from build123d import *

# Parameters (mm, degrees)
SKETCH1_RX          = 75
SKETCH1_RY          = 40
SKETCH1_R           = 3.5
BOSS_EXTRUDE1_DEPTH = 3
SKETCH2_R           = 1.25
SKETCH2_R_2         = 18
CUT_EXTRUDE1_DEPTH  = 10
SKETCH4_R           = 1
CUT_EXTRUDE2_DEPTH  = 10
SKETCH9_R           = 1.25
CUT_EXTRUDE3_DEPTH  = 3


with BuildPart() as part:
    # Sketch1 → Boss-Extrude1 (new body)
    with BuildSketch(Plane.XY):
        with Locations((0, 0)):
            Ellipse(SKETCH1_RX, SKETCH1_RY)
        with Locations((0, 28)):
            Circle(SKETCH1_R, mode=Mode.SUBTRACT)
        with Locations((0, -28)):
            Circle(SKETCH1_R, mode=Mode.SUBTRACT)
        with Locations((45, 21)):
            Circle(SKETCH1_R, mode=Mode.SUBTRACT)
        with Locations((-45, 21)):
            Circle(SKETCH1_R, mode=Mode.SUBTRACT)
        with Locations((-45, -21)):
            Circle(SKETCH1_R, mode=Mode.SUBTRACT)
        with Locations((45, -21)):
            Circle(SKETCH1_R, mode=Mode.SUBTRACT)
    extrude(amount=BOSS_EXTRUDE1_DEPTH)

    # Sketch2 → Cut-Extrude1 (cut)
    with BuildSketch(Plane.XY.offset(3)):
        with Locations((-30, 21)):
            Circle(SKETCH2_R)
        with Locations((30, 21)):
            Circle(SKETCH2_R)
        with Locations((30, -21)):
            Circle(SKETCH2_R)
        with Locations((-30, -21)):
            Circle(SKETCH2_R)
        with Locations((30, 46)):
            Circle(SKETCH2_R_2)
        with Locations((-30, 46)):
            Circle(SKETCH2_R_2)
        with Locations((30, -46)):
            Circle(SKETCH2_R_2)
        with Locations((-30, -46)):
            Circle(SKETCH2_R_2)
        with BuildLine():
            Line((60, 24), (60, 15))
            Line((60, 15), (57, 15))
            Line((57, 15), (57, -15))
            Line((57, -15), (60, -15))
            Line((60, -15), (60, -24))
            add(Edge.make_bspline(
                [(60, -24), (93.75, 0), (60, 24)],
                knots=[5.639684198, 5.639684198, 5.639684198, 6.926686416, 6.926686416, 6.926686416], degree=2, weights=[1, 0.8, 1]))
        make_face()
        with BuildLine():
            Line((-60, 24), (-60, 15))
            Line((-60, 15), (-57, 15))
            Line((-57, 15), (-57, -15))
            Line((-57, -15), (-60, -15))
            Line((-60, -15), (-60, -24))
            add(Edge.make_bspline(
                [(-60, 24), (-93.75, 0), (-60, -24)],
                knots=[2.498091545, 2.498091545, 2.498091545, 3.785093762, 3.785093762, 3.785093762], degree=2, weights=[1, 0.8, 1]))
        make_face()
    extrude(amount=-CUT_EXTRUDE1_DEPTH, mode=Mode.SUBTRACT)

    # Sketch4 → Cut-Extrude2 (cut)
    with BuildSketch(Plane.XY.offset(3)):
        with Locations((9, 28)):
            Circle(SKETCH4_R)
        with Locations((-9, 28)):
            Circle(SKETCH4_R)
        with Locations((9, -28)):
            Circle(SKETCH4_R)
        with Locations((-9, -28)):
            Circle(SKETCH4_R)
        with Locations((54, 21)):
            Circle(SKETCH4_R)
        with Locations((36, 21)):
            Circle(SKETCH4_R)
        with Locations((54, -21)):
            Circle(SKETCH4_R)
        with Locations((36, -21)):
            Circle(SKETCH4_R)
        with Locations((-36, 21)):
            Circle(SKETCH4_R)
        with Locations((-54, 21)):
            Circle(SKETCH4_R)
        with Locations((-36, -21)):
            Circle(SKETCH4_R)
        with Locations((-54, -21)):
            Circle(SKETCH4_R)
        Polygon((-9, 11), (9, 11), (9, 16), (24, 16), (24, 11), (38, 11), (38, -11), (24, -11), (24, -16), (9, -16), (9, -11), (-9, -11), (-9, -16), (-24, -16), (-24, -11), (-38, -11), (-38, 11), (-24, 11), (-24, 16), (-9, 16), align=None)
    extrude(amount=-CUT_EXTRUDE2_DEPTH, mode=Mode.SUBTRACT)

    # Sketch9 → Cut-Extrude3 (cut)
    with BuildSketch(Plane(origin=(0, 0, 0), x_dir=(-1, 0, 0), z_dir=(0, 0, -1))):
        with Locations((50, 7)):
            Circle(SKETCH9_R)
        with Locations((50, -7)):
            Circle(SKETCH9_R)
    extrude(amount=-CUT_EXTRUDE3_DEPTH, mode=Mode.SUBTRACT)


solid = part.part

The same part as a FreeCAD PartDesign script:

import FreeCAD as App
import Part
import Sketcher
Q = App.Units.Quantity


def add_polygon(sketch, points):
    """Adds a closed chain of lines whose ends are joined by coincident constraints."""
    first, n = sketch.GeometryCount, len(points)
    for a, b in zip(points, points[1:] + points[:1]):
        sketch.addGeometry(Part.LineSegment(App.Vector(*a, 0), App.Vector(*b, 0)), False)
    for i in range(n):
        sketch.addConstraint(Sketcher.Constraint("Coincident", first + i, 2, first + (i + 1) % n, 1))

doc = App.newDocument("Part")
body = doc.addObject("PartDesign::Body", "Body")

sketch1 = doc.addObject("Sketcher::SketchObject", "Sketch")
body.addObject(sketch1)
sketch1.AttachmentSupport = (doc.XY_Plane, [""])
sketch1.MapMode = "FlatFace"
sketch1.addGeometry(Part.Ellipse(App.Vector(75, 0, 0), App.Vector(0, 40, 0), App.Vector(0, 0, 0)), False)
sketch1.addGeometry(Part.Circle(App.Vector(-45, -21, 0), App.Vector(0, 0, 1), 3.5), False)
sketch1.addGeometry(Part.Circle(App.Vector(0, -28, 0), App.Vector(0, 0, 1), 3.5), False)
sketch1.addGeometry(Part.Circle(App.Vector(45, -21, 0), App.Vector(0, 0, 1), 3.5), False)
sketch1.addGeometry(Part.Circle(App.Vector(-45, 21, 0), App.Vector(0, 0, 1), 3.5), False)
sketch1.addGeometry(Part.Circle(App.Vector(0, 28, 0), App.Vector(0, 0, 1), 3.5), False)
sketch1.addGeometry(Part.Circle(App.Vector(45, 21, 0), App.Vector(0, 0, 1), 3.5), False)
sketch1.addConstraint(Sketcher.Constraint("Block", 0))
sketch1.addConstraint(Sketcher.Constraint("Equal", 1, 2))
sketch1.addConstraint(Sketcher.Constraint("Equal", 2, 3))
sketch1.addConstraint(Sketcher.Constraint("Equal", 3, 4))
sketch1.addConstraint(Sketcher.Constraint("Equal", 4, 5))
sketch1.addConstraint(Sketcher.Constraint("Equal", 5, 6))
sketch1.addConstraint(Sketcher.Constraint("Symmetric", 3, 3, 4, 3, -1, 1))
sketch1.addConstraint(Sketcher.Constraint("Symmetric", 2, 3, 5, 3, -1, 1))
sketch1.addConstraint(Sketcher.Constraint("Symmetric", 1, 3, 6, 3, -1, 1))
sketch1.addConstraint(Sketcher.Constraint("Symmetric", 1, 3, 3, 3, -2))
sketch1.addConstraint(Sketcher.Constraint("PointOnObject", 2, 3, -2))
sketch1.addConstraint(Sketcher.Constraint("Diameter", 1, Q("7 mm")))
sketch1.addConstraint(Sketcher.Constraint("DistanceX", 1, 3, -1, 1, Q("45 mm")))
sketch1.addConstraint(Sketcher.Constraint("DistanceY", 1, 3, -1, 1, Q("21 mm")))
sketch1.addConstraint(Sketcher.Constraint("DistanceY", 2, 3, -1, 1, Q("28 mm")))
pad1 = doc.addObject("PartDesign::Pad", "Pad")
body.addObject(pad1)
pad1.Profile = sketch1
pad1.Length = 3

sketch2 = doc.addObject("Sketcher::SketchObject", "Sketch001")
body.addObject(sketch2)
sketch2.AttachmentSupport = (doc.XY_Plane, [""])
sketch2.MapMode = "FlatFace"
sketch2.AttachmentOffset = App.Placement(App.Vector(0, 0, 3), App.Rotation())
sketch2.addGeometry(Part.Circle(App.Vector(-30, 21, 0), App.Vector(0, 0, 1), 1.25), False)
sketch2.addGeometry(Part.Circle(App.Vector(30, 21, 0), App.Vector(0, 0, 1), 1.25), False)
sketch2.addGeometry(Part.Circle(App.Vector(30, -21, 0), App.Vector(0, 0, 1), 1.25), False)
sketch2.addGeometry(Part.Circle(App.Vector(-30, -21, 0), App.Vector(0, 0, 1), 1.25), False)
sketch2.addGeometry(Part.Circle(App.Vector(30, 46, 0), App.Vector(0, 0, 1), 18), False)
sketch2.addGeometry(Part.Circle(App.Vector(-30, 46, 0), App.Vector(0, 0, 1), 18), False)
sketch2.addGeometry(Part.Circle(App.Vector(30, -46, 0), App.Vector(0, 0, 1), 18), False)
sketch2.addGeometry(Part.Circle(App.Vector(-30, -46, 0), App.Vector(0, 0, 1), 18), False)
sketch2.addGeometry(Part.LineSegment(App.Vector(60, 24, 0), App.Vector(60, 15, 0)), False)
sketch2.addGeometry(Part.LineSegment(App.Vector(60, 15, 0), App.Vector(57, 15, 0)), False)
sketch2.addGeometry(Part.LineSegment(App.Vector(57, 15, 0), App.Vector(57, -15, 0)), False)
sketch2.addGeometry(Part.LineSegment(App.Vector(57, -15, 0), App.Vector(60, -15, 0)), False)
sketch2.addGeometry(Part.LineSegment(App.Vector(60, -15, 0), App.Vector(60, -24, 0)), False)
sketch2.addGeometry(Part.BSplineCurve([App.Vector(60, -24, 0), App.Vector(93.75, 0, 0), App.Vector(60, 24, 0)], [3, 3], [5.639684198, 6.926686416], False, 2, [1, 0.8, 1], False), False)
sketch2.addGeometry(Part.LineSegment(App.Vector(-60, 15, 0), App.Vector(-60, 24, 0)), False)
sketch2.addGeometry(Part.BSplineCurve([App.Vector(-60, 24, 0), App.Vector(-93.75, 0, 0), App.Vector(-60, -24, 0)], [3, 3], [2.498091545, 3.785093762], False, 2, [1, 0.8, 1], False), False)
sketch2.addGeometry(Part.LineSegment(App.Vector(-60, -24, 0), App.Vector(-60, -15, 0)), False)
sketch2.addGeometry(Part.LineSegment(App.Vector(-60, -15, 0), App.Vector(-57, -15, 0)), False)
sketch2.addGeometry(Part.LineSegment(App.Vector(-57, -15, 0), App.Vector(-57, 15, 0)), False)
sketch2.addGeometry(Part.LineSegment(App.Vector(-57, 15, 0), App.Vector(-60, 15, 0)), False)
sketch2.addConstraint(Sketcher.Constraint("Block", 13))
sketch2.addConstraint(Sketcher.Constraint("Block", 15))
sketch2.addConstraint(Sketcher.Constraint("Coincident", 8, 2, 9, 1))
sketch2.addConstraint(Sketcher.Constraint("Coincident", 9, 2, 10, 1))
sketch2.addConstraint(Sketcher.Constraint("Coincident", 10, 2, 11, 1))
sketch2.addConstraint(Sketcher.Constraint("Coincident", 11, 2, 12, 1))
sketch2.addConstraint(Sketcher.Constraint("Coincident", 12, 2, 13, 1))
sketch2.addConstraint(Sketcher.Constraint("Coincident", 13, 2, 8, 1))
sketch2.addConstraint(Sketcher.Constraint("Coincident", 14, 2, 15, 1))
sketch2.addConstraint(Sketcher.Constraint("Coincident", 15, 2, 16, 1))
sketch2.addConstraint(Sketcher.Constraint("Coincident", 16, 2, 17, 1))
sketch2.addConstraint(Sketcher.Constraint("Coincident", 17, 2, 18, 1))
sketch2.addConstraint(Sketcher.Constraint("Coincident", 18, 2, 19, 1))
sketch2.addConstraint(Sketcher.Constraint("Coincident", 19, 2, 14, 1))
sketch2.addConstraint(Sketcher.Constraint("Vertical", 8))
sketch2.addConstraint(Sketcher.Constraint("Horizontal", 9))
sketch2.addConstraint(Sketcher.Constraint("Vertical", 10))
sketch2.addConstraint(Sketcher.Constraint("Horizontal", 11))
sketch2.addConstraint(Sketcher.Constraint("Vertical", 12))
sketch2.addConstraint(Sketcher.Constraint("Vertical", 14))
sketch2.addConstraint(Sketcher.Constraint("Vertical", 16))
sketch2.addConstraint(Sketcher.Constraint("Horizontal", 17))
sketch2.addConstraint(Sketcher.Constraint("Vertical", 18))
sketch2.addConstraint(Sketcher.Constraint("Horizontal", 19))
sketch2.addConstraint(Sketcher.Constraint("Equal", 0, 1))
sketch2.addConstraint(Sketcher.Constraint("Equal", 1, 2))
sketch2.addConstraint(Sketcher.Constraint("Equal", 2, 3))
sketch2.addConstraint(Sketcher.Constraint("Equal", 4, 5))
sketch2.addConstraint(Sketcher.Constraint("Equal", 5, 6))
sketch2.addConstraint(Sketcher.Constraint("Equal", 6, 7))
sketch2.addConstraint(Sketcher.Constraint("Symmetric", 0, 3, 2, 3, -1, 1))
sketch2.addConstraint(Sketcher.Constraint("Symmetric", 1, 3, 3, 3, -1, 1))
sketch2.addConstraint(Sketcher.Constraint("Symmetric", 5, 3, 6, 3, -1, 1))
sketch2.addConstraint(Sketcher.Constraint("Symmetric", 4, 3, 7, 3, -1, 1))
sketch2.addConstraint(Sketcher.Constraint("Symmetric", 9, 2, 17, 2, -1, 1))
sketch2.addConstraint(Sketcher.Constraint("Symmetric", 0, 3, 1, 3, -2))
sketch2.addConstraint(Sketcher.Constraint("Symmetric", 4, 3, 5, 3, -2))
sketch2.addConstraint(Sketcher.Constraint("Horizontal", 11, 2, 16, 2))
sketch2.addConstraint(Sketcher.Constraint("Horizontal", 9, 2, 18, 2))
sketch2.addConstraint(Sketcher.Constraint("Vertical", 2, 3, 4, 3))
sketch2.addConstraint(Sketcher.Constraint("Diameter", 4, Q("36 mm")))
sketch2.addConstraint(Sketcher.Constraint("Diameter", 0, Q("2.5 mm")))
sketch2.addConstraint(Sketcher.Constraint("DistanceX", 9, 2, 9, 1, Q("3 mm")))
sketch2.addConstraint(Sketcher.Constraint("DistanceY", 8, 2, 8, 1, Q("9 mm")))
sketch2.addConstraint(Sketcher.Constraint("DistanceX", 0, 3, -1, 1, Q("30 mm")))
sketch2.addConstraint(Sketcher.Constraint("DistanceY", -1, 1, 0, 3, Q("21 mm")))
sketch2.addConstraint(Sketcher.Constraint("DistanceY", -1, 1, 4, 3, Q("46 mm")))
pocket1 = doc.addObject("PartDesign::Pocket", "Pocket")
body.addObject(pocket1)
pocket1.Profile = sketch2
pocket1.Length = 10

sketch3 = doc.addObject("Sketcher::SketchObject", "Sketch002")
body.addObject(sketch3)
sketch3.AttachmentSupport = (doc.XY_Plane, [""])
sketch3.MapMode = "FlatFace"
sketch3.AttachmentOffset = App.Placement(App.Vector(0, 0, 3), App.Rotation())
sketch3.addGeometry(Part.Circle(App.Vector(9, 28, 0), App.Vector(0, 0, 1), 1), False)
sketch3.addGeometry(Part.Circle(App.Vector(-9, 28, 0), App.Vector(0, 0, 1), 1), False)
sketch3.addGeometry(Part.Circle(App.Vector(9, -28, 0), App.Vector(0, 0, 1), 1), False)
sketch3.addGeometry(Part.Circle(App.Vector(-9, -28, 0), App.Vector(0, 0, 1), 1), False)
sketch3.addGeometry(Part.Circle(App.Vector(54, 21, 0), App.Vector(0, 0, 1), 1), False)
sketch3.addGeometry(Part.Circle(App.Vector(36, 21, 0), App.Vector(0, 0, 1), 1), False)
sketch3.addGeometry(Part.Circle(App.Vector(54, -21, 0), App.Vector(0, 0, 1), 1), False)
sketch3.addGeometry(Part.Circle(App.Vector(36, -21, 0), App.Vector(0, 0, 1), 1), False)
sketch3.addGeometry(Part.Circle(App.Vector(-36, 21, 0), App.Vector(0, 0, 1), 1), False)
sketch3.addGeometry(Part.Circle(App.Vector(-54, 21, 0), App.Vector(0, 0, 1), 1), False)
sketch3.addGeometry(Part.Circle(App.Vector(-36, -21, 0), App.Vector(0, 0, 1), 1), False)
sketch3.addGeometry(Part.Circle(App.Vector(-54, -21, 0), App.Vector(0, 0, 1), 1), False)
add_polygon(sketch3, [(9, 11), (-9, 11), (-9, 16), (-24, 16), (-24, 11), (-38, 11), (-38, -11), (-24, -11), (-24, -16), (-9, -16), (-9, -11), (9, -11), (9, -16), (24, -16), (24, -11), (38, -11), (38, 11), (24, 11), (24, 16), (9, 16)])
sketch3.addConstraint(Sketcher.Constraint("Horizontal", 12))
sketch3.addConstraint(Sketcher.Constraint("Vertical", 13))
sketch3.addConstraint(Sketcher.Constraint("Horizontal", 14))
sketch3.addConstraint(Sketcher.Constraint("Vertical", 15))
sketch3.addConstraint(Sketcher.Constraint("Horizontal", 16))
sketch3.addConstraint(Sketcher.Constraint("Vertical", 17))
sketch3.addConstraint(Sketcher.Constraint("Horizontal", 18))
sketch3.addConstraint(Sketcher.Constraint("Vertical", 19))
sketch3.addConstraint(Sketcher.Constraint("Horizontal", 20))
sketch3.addConstraint(Sketcher.Constraint("Vertical", 21))
sketch3.addConstraint(Sketcher.Constraint("Horizontal", 22))
sketch3.addConstraint(Sketcher.Constraint("Vertical", 23))
sketch3.addConstraint(Sketcher.Constraint("Horizontal", 24))
sketch3.addConstraint(Sketcher.Constraint("Vertical", 25))
sketch3.addConstraint(Sketcher.Constraint("Horizontal", 26))
sketch3.addConstraint(Sketcher.Constraint("Vertical", 27))
sketch3.addConstraint(Sketcher.Constraint("Horizontal", 28))
sketch3.addConstraint(Sketcher.Constraint("Vertical", 29))
sketch3.addConstraint(Sketcher.Constraint("Horizontal", 30))
sketch3.addConstraint(Sketcher.Constraint("Vertical", 31))
sketch3.addConstraint(Sketcher.Constraint("Equal", 0, 1))
sketch3.addConstraint(Sketcher.Constraint("Equal", 1, 2))
sketch3.addConstraint(Sketcher.Constraint("Equal", 2, 3))
sketch3.addConstraint(Sketcher.Constraint("Equal", 3, 4))
sketch3.addConstraint(Sketcher.Constraint("Equal", 4, 5))
sketch3.addConstraint(Sketcher.Constraint("Equal", 5, 6))
sketch3.addConstraint(Sketcher.Constraint("Equal", 6, 7))
sketch3.addConstraint(Sketcher.Constraint("Equal", 7, 8))
sketch3.addConstraint(Sketcher.Constraint("Equal", 8, 9))
sketch3.addConstraint(Sketcher.Constraint("Equal", 9, 10))
sketch3.addConstraint(Sketcher.Constraint("Equal", 10, 11))
sketch3.addConstraint(Sketcher.Constraint("Symmetric", 1, 3, 2, 3, -1, 1))
sketch3.addConstraint(Sketcher.Constraint("Symmetric", 0, 3, 3, 3, -1, 1))
sketch3.addConstraint(Sketcher.Constraint("Symmetric", 7, 3, 8, 3, -1, 1))
sketch3.addConstraint(Sketcher.Constraint("Symmetric", 6, 3, 9, 3, -1, 1))
sketch3.addConstraint(Sketcher.Constraint("Symmetric", 5, 3, 10, 3, -1, 1))
sketch3.addConstraint(Sketcher.Constraint("Symmetric", 4, 3, 11, 3, -1, 1))
sketch3.addConstraint(Sketcher.Constraint("Symmetric", 12, 2, 22, 2, -1, 1))
sketch3.addConstraint(Sketcher.Constraint("Symmetric", 14, 2, 24, 2, -1, 1))
sketch3.addConstraint(Sketcher.Constraint("Symmetric", 16, 2, 26, 2, -1, 1))
sketch3.addConstraint(Sketcher.Constraint("Symmetric", 18, 2, 28, 2, -1, 1))
sketch3.addConstraint(Sketcher.Constraint("Symmetric", 20, 2, 30, 2, -1, 1))
sketch3.addConstraint(Sketcher.Constraint("Symmetric", 0, 3, 1, 3, -2))
sketch3.addConstraint(Sketcher.Constraint("Symmetric", 5, 3, 8, 3, -2))
sketch3.addConstraint(Sketcher.Constraint("Symmetric", 4, 3, 9, 3, -2))
sketch3.addConstraint(Sketcher.Constraint("Symmetric", 20, 2, 23, 2, -2))
sketch3.addConstraint(Sketcher.Constraint("Symmetric", 18, 2, 25, 2, -2))
sketch3.addConstraint(Sketcher.Constraint("Horizontal", 4, 3, 5, 3))
sketch3.addConstraint(Sketcher.Constraint("Horizontal", 12, 2, 15, 2))
sketch3.addConstraint(Sketcher.Constraint("Vertical", 3, 3, 12, 2))
sketch3.addConstraint(Sketcher.Constraint("Diameter", 0, Q("2 mm")))
sketch3.addConstraint(Sketcher.Constraint("DistanceX", 12, 2, 12, 1, Q("18 mm")))
sketch3.addConstraint(Sketcher.Constraint("DistanceX", 14, 2, 14, 1, Q("15 mm")))
sketch3.addConstraint(Sketcher.Constraint("DistanceX", 16, 2, 16, 1, Q("14 mm")))
sketch3.addConstraint(Sketcher.Constraint("DistanceY", 13, 1, 13, 2, Q("5 mm")))
sketch3.addConstraint(Sketcher.Constraint("DistanceY", 17, 2, 17, 1, Q("22 mm")))
sketch3.addConstraint(Sketcher.Constraint("DistanceY", -1, 1, 0, 3, Q("28 mm")))
sketch3.addConstraint(Sketcher.Constraint("DistanceX", -1, 1, 4, 3, Q("54 mm")))
sketch3.addConstraint(Sketcher.Constraint("DistanceY", -1, 1, 4, 3, Q("21 mm")))
sketch3.addConstraint(Sketcher.Constraint("DistanceX", -1, 1, 5, 3, Q("36 mm")))
pocket2 = doc.addObject("PartDesign::Pocket", "Pocket001")
body.addObject(pocket2)
pocket2.Profile = sketch3
pocket2.Length = 10

sketch4 = doc.addObject("Sketcher::SketchObject", "Sketch003")
body.addObject(sketch4)
sketch4.AttachmentSupport = (doc.XY_Plane, [""])
sketch4.MapMode = "FlatFace"
sketch4.addGeometry(Part.Circle(App.Vector(-50, 7, 0), App.Vector(0, 0, 1), 1.2), False)
sketch4.addGeometry(Part.Circle(App.Vector(-50, -7, 0), App.Vector(0, 0, 1), 1.2), False)
sketch4.addConstraint(Sketcher.Constraint("Equal", 0, 1))
sketch4.addConstraint(Sketcher.Constraint("Symmetric", 0, 3, 1, 3, -1))
sketch4.addConstraint(Sketcher.Constraint("Diameter", 0, Q("2.5 mm")))
sketch4.addConstraint(Sketcher.Constraint("DistanceX", 0, 3, -1, 1, Q("50 mm")))
sketch4.addConstraint(Sketcher.Constraint("DistanceY", -1, 1, 0, 3, Q("7 mm")))
pocket3 = doc.addObject("PartDesign::Pocket", "Pocket002")
body.addObject(pocket3)
pocket3.Profile = sketch4
pocket3.Length = 3
pocket3.Reversed = True

doc.recompute()
